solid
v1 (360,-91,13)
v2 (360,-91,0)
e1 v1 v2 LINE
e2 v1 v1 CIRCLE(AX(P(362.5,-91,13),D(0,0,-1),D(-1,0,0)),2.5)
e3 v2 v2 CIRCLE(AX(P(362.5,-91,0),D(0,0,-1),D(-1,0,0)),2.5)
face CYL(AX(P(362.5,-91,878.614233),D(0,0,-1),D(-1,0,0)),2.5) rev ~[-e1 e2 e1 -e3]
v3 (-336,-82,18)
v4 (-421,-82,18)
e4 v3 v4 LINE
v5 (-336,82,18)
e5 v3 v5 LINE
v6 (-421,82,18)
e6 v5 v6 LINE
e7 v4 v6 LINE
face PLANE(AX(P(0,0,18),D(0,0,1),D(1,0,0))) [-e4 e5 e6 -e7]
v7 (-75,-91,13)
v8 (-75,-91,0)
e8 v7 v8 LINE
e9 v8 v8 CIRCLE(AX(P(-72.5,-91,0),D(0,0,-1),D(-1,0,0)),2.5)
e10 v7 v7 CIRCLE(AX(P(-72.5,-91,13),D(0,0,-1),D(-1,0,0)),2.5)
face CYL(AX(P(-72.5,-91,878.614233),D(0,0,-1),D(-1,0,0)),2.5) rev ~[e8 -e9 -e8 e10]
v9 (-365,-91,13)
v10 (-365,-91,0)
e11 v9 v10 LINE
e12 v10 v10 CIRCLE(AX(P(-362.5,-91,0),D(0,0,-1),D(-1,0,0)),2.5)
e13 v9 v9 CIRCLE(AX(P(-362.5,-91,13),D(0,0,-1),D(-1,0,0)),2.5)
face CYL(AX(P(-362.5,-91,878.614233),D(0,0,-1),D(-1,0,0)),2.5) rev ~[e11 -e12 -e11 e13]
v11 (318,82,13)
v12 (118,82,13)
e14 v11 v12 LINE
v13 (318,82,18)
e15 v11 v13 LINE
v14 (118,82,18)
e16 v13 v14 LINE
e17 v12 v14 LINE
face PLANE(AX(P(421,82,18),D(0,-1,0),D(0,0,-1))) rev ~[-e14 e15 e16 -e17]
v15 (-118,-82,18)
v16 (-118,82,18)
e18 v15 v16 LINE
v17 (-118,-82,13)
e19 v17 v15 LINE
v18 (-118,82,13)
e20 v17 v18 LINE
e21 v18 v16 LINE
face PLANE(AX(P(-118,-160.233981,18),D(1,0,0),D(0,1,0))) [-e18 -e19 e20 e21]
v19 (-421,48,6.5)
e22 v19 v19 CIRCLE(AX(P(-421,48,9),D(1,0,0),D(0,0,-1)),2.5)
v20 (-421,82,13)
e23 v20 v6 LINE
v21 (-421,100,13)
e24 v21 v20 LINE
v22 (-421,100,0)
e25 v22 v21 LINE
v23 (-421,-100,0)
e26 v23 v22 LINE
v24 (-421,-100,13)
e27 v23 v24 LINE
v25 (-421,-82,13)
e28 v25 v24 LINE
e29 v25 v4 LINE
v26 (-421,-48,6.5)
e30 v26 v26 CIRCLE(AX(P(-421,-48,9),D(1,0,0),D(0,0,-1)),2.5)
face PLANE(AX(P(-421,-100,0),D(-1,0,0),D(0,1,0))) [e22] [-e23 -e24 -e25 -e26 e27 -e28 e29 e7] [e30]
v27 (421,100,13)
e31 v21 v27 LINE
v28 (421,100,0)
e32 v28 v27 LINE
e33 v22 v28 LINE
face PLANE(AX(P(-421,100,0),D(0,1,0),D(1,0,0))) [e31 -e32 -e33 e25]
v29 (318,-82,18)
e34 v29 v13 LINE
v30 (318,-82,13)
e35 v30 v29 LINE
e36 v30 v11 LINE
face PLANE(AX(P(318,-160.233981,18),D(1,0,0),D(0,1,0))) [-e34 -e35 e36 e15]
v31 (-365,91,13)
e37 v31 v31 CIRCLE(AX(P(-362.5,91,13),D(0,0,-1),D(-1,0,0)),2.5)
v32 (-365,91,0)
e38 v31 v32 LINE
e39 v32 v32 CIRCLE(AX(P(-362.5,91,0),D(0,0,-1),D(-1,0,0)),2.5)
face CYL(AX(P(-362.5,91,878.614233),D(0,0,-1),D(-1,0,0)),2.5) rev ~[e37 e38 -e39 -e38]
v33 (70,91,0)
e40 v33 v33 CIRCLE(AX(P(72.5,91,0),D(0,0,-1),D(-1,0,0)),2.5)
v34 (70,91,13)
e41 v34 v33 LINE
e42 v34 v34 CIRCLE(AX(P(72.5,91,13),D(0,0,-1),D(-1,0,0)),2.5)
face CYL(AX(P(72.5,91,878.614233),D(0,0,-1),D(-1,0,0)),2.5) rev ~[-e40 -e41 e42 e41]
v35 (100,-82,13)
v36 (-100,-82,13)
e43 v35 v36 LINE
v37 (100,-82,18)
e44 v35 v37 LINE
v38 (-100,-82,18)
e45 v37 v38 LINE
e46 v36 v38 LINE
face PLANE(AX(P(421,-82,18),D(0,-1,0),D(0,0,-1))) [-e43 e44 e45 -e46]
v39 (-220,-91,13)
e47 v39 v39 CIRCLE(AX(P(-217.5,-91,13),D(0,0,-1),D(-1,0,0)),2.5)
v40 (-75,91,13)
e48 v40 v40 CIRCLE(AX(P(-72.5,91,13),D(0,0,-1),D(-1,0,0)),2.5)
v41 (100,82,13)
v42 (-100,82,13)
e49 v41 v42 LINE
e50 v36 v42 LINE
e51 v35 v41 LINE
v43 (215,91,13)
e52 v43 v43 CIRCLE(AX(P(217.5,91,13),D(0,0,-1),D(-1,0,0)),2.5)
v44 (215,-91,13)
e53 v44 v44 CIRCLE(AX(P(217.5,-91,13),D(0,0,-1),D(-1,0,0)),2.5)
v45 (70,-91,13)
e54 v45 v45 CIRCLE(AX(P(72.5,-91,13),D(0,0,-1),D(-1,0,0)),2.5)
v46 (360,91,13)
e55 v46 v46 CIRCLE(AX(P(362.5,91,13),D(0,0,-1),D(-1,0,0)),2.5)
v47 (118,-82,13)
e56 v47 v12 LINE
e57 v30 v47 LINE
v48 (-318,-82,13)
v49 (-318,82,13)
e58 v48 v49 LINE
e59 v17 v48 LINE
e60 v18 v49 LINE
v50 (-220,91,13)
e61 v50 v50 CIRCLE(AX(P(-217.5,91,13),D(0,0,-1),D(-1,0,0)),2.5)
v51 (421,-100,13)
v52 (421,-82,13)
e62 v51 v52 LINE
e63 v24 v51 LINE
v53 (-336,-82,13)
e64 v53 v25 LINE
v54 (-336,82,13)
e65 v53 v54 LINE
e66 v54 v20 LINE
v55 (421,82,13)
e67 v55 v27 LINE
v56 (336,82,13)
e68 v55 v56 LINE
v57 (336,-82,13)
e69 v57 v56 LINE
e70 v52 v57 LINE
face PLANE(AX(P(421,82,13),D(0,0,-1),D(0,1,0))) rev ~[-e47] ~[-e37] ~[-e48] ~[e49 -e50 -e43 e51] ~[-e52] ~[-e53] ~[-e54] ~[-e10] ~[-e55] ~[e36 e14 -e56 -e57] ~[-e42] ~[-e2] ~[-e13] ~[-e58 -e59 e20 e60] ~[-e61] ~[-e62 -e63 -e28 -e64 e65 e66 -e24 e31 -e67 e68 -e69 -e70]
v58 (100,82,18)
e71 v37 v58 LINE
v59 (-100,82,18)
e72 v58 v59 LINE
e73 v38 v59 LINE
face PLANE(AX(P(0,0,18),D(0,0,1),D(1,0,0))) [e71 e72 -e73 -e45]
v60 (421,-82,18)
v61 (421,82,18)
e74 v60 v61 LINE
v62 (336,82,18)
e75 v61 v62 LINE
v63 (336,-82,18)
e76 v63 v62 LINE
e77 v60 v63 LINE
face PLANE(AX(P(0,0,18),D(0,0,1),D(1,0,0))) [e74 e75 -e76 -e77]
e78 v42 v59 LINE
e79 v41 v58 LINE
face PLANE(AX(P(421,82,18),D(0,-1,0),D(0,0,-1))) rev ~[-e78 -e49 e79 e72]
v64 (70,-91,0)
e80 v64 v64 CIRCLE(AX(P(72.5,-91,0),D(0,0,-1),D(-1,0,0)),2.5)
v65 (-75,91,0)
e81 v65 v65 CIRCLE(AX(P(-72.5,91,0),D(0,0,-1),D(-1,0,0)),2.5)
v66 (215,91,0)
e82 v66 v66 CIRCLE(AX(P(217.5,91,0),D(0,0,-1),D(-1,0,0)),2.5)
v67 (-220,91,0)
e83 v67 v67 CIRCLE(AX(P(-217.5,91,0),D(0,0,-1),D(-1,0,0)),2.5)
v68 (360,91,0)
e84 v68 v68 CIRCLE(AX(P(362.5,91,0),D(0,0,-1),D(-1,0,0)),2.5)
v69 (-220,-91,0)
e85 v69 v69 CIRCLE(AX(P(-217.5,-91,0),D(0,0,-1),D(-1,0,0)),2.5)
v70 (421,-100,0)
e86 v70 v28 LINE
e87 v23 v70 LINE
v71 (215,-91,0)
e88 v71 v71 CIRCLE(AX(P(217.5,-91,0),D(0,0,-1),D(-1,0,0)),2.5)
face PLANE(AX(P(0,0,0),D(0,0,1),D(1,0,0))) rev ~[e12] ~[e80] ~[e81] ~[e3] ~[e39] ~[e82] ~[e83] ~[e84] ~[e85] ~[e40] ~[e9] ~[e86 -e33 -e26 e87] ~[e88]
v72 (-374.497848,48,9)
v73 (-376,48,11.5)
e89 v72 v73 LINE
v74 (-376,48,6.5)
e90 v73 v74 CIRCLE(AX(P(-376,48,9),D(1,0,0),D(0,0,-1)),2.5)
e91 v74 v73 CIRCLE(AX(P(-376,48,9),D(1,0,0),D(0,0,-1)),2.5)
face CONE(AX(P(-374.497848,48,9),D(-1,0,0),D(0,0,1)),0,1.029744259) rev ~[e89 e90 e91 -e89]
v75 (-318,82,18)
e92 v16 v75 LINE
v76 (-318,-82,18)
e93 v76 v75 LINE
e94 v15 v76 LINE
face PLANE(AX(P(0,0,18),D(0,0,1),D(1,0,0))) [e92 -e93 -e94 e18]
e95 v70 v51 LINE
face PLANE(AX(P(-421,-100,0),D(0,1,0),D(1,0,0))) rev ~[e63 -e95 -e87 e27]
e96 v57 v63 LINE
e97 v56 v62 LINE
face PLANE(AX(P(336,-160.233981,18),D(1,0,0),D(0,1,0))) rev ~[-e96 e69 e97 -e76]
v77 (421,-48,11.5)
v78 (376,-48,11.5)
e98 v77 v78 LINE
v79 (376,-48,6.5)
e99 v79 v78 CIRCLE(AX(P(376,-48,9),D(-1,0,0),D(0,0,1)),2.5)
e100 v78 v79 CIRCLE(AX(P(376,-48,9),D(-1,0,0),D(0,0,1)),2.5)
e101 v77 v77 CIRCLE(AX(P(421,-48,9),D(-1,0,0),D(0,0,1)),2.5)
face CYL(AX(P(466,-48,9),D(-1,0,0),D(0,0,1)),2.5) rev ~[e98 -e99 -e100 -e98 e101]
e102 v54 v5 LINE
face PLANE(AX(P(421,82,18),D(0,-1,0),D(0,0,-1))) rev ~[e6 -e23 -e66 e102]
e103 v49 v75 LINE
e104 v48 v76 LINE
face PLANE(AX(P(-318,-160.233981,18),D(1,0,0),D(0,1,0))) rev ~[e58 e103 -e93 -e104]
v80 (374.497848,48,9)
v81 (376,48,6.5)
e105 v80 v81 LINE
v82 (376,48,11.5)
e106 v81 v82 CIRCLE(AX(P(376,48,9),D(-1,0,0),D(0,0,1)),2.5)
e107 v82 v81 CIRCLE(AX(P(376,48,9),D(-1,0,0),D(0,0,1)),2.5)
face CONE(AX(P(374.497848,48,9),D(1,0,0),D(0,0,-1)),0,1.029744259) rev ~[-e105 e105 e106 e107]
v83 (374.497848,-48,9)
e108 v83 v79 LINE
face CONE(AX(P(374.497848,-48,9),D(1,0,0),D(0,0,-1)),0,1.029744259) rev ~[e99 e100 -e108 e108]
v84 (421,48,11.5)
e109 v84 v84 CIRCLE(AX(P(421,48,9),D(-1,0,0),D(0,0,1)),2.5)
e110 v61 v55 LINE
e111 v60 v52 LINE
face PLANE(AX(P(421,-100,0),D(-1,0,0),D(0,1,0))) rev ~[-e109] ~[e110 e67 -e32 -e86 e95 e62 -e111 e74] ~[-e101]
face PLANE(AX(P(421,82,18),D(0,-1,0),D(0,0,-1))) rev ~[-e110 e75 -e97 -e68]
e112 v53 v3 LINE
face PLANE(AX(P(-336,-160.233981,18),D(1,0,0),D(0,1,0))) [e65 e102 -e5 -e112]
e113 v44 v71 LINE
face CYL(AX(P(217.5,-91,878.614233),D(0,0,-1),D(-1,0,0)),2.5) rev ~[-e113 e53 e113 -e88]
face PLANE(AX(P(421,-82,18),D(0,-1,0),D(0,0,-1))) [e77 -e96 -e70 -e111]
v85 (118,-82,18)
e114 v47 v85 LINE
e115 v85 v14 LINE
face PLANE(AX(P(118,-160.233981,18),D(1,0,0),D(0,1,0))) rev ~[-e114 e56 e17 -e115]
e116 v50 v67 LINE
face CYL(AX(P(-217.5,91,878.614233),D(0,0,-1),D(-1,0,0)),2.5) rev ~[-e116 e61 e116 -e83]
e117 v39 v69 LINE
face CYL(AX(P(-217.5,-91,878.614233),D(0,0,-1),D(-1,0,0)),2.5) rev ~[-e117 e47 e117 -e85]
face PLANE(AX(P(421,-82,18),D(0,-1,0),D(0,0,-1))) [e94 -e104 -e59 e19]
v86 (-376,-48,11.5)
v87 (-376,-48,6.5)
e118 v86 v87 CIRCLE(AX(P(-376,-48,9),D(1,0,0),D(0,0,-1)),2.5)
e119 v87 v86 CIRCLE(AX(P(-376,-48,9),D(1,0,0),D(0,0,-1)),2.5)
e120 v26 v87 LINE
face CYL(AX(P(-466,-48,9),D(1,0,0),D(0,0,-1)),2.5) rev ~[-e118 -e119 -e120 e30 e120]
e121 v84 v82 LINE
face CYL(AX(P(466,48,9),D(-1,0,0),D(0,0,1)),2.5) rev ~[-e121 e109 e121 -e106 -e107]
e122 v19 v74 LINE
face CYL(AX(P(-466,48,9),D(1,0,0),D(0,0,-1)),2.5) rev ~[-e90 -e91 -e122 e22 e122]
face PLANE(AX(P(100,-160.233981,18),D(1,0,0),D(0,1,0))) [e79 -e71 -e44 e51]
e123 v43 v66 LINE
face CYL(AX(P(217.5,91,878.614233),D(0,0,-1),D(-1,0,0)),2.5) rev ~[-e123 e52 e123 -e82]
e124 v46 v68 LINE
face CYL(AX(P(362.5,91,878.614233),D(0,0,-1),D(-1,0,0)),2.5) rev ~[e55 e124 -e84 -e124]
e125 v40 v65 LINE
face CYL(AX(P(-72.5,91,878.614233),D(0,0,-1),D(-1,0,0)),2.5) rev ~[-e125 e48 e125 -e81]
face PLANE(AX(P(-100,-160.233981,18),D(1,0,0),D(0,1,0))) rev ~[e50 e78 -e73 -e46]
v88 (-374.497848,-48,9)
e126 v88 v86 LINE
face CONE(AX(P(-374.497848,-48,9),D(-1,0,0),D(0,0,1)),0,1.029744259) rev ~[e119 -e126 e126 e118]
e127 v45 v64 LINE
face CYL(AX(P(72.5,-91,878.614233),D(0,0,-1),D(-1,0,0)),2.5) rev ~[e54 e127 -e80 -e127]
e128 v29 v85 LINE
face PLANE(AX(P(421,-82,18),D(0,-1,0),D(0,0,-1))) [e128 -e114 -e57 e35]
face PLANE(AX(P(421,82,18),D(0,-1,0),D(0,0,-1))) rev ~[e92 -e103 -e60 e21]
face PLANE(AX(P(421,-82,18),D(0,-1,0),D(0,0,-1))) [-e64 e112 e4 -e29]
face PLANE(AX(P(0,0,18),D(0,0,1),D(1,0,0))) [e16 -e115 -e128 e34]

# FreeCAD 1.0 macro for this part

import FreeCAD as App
import Part
import Sketcher

V = App.Vector


def add_polygon(sketch, points):
    """Adds a closed chain of lines whose ends are joined by coincident constraints."""
    first, n = sketch.GeometryCount, len(points)
    for a, b in zip(points, points[1:] + points[:1]):
        sketch.addGeometry(Part.LineSegment(App.Vector(*a, 0), App.Vector(*b, 0)), False)
    for i in range(n):
        sketch.addConstraint(Sketcher.Constraint("Coincident", first + i, 2, first + (i + 1) % n, 1))

doc = App.newDocument("Part")
params = doc.addObject("Spreadsheet::Sheet", "Params")
for row, (alias, value) in enumerate([
    ("sketch1_width", "842 mm"),
    ("sketch1_height", "200 mm"),
    ("pad1_length", "18 mm"),
    ("sketch2_width", "18 mm"),
    ("sketch2_height", "5 mm"),
    ("sketch3_width", "18 mm"),
    ("pocket2_length", "5 mm"),
    ("sketch4_diameter", "5 mm"),
    ("hole_diameter", "5 mm"),
    ("sketch5_diameter", "5 mm"),
    ("hole2_diameter", "5 mm"),
    ("hole2_depth", "45 mm"),
    ("sketch6_diameter", "5 mm"),
    ("hole3_diameter", "5 mm"),
    ("hole3_depth", "45 mm"),
], start=1):
    params.set(f"A{row}", alias)
    params.set(f"B{row}", "=" + value)
    params.setAlias(f"B{row}", alias)

body = doc.addObject("PartDesign::Body", "Body")

sketch1 = doc.addObject("Sketcher::SketchObject", "Sketch")
body.addObject(sketch1)
sketch1.AttachmentSupport = (doc.XY_Plane, [""])
sketch1.MapMode = "FlatFace"
add_polygon(sketch1, [(-421, 100), (-421, -100), (421, -100), (421, 100)])
sketch1.addConstraint(Sketcher.Constraint("Vertical", 0))
sketch1.addConstraint(Sketcher.Constraint("Horizontal", 1))
sketch1.addConstraint(Sketcher.Constraint("Vertical", 2))
sketch1.addConstraint(Sketcher.Constraint("Horizontal", 3))
sketch1.addConstraint(Sketcher.Constraint("Symmetric", 0, 2, 2, 2, -1, 1))
sketch1.addConstraint(Sketcher.Constraint("DistanceX", 1, 1, 1, 2, 842.0))
sketch1.addConstraint(Sketcher.Constraint("DistanceY", 0, 2, 0, 1, 200.0))
sketch1.setExpression("Constraints[9]", "Params.sketch1_width")
sketch1.setExpression("Constraints[10]", "Params.sketch1_height")
pad1 = doc.addObject("PartDesign::Pad", "Pad")
body.addObject(pad1)
pad1.Profile = sketch1
pad1.setExpression("Length", "Params.pad1_length")

sketch2 = doc.addObject("Sketcher::SketchObject", "Sketch001")
body.addObject(sketch2)
sketch2.AttachmentSupport = (doc.YZ_Plane, [""])
sketch2.MapMode = "FlatFace"
sketch2.AttachmentOffset = App.Placement(V(0, 0, 421), App.Rotation())
add_polygon(sketch2, [(100, 18), (82, 18), (82, 13), (100, 13)])
add_polygon(sketch2, [(-82, 18), (-100, 18), (-100, 13), (-82, 13)])
sketch2.addConstraint(Sketcher.Constraint("Horizontal", 0))
sketch2.addConstraint(Sketcher.Constraint("Vertical", 1))
sketch2.addConstraint(Sketcher.Constraint("Horizontal", 2))
sketch2.addConstraint(Sketcher.Constraint("Vertical", 3))
sketch2.addConstraint(Sketcher.Constraint("Horizontal", 4))
sketch2.addConstraint(Sketcher.Constraint("Vertical", 5))
sketch2.addConstraint(Sketcher.Constraint("Horizontal", 6))
sketch2.addConstraint(Sketcher.Constraint("Vertical", 7))
sketch2.addConstraint(Sketcher.Constraint("Symmetric", 3, 2, 4, 2, -2))
sketch2.addConstraint(Sketcher.Constraint("Symmetric", 1, 2, 6, 2, -2))
sketch2.addConstraint(Sketcher.Constraint("DistanceX", 0, 2, 0, 1, 18.0))
sketch2.addConstraint(Sketcher.Constraint("DistanceY", 1, 2, 1, 1, 5.0))
sketch2.addConstraint(Sketcher.Constraint("DistanceX", -1, 1, 0, 2, 82.0))
sketch2.addConstraint(Sketcher.Constraint("DistanceY", -1, 1, 0, 2, 18.0))
sketch2.setExpression("Constraints[18]", "Params.sketch2_width")
sketch2.setExpression("Constraints[19]", "Params.sketch2_height")
pocket1 = doc.addObject("PartDesign::Pocket", "Pocket")
body.addObject(pocket1)
pocket1.Profile = sketch2
pocket1.Type = "ThroughAll"

sketch3 = doc.addObject("Sketcher::SketchObject", "Sketch002")
body.addObject(sketch3)
sketch3.AttachmentSupport = (doc.XY_Plane, [""])
sketch3.MapMode = "FlatFace"
sketch3.AttachmentOffset = App.Placement(V(0, 0, 18), App.Rotation())
add_polygon(sketch3, [(-336, 135), (-336, -160), (-318, -160), (-318, 135)])
add_polygon(sketch3, [(-118, 135), (-118, -160), (-100, -160), (-100, 135)])
add_polygon(sketch3, [(100, 135), (100, -160), (118, -160), (118, 135)])
add_polygon(sketch3, [(318, 135), (318, -160), (336, -160), (336, 135)])
sketch3.addConstraint(Sketcher.Constraint("Vertical", 0))
sketch3.addConstraint(Sketcher.Constraint("Horizontal", 1))
sketch3.addConstraint(Sketcher.Constraint("Vertical", 2))
sketch3.addConstraint(Sketcher.Constraint("Horizontal", 3))
sketch3.addConstraint(Sketcher.Constraint("Vertical", 4))
sketch3.addConstraint(Sketcher.Constraint("Horizontal", 5))
sketch3.addConstraint(Sketcher.Constraint("Vertical", 6))
sketch3.addConstraint(Sketcher.Constraint("Horizontal", 7))
sketch3.addConstraint(Sketcher.Constraint("Vertical", 8))
sketch3.addConstraint(Sketcher.Constraint("Horizontal", 9))
sketch3.addConstraint(Sketcher.Constraint("Vertical", 10))
sketch3.addConstraint(Sketcher.Constraint("Horizontal", 11))
sketch3.addConstraint(Sketcher.Constraint("Vertical", 12))
sketch3.addConstraint(Sketcher.Constraint("Horizontal", 13))
sketch3.addConstraint(Sketcher.Constraint("Vertical", 14))
sketch3.addConstraint(Sketcher.Constraint("Horizontal", 15))
sketch3.addConstraint(Sketcher.Constraint("Symmetric", 5, 2, 8, 2, -2))
sketch3.addConstraint(Sketcher.Constraint("Symmetric", 7, 2, 10, 2, -2))
sketch3.addConstraint(Sketcher.Constraint("Symmetric", 1, 2, 12, 2, -2))
sketch3.addConstraint(Sketcher.Constraint("Symmetric", 3, 2, 14, 2, -2))
sketch3.addConstraint(Sketcher.Constraint("Horizontal", 1, 2, 4, 2))
sketch3.addConstraint(Sketcher.Constraint("Horizontal", 3, 2, 6, 2))
sketch3.addConstraint(Sketcher.Constraint("Equal", 3, 5))
sketch3.addConstraint(Sketcher.Constraint("DistanceX", 1, 1, 1, 2, 18.0))
sketch3.addConstraint(Sketcher.Constraint("DistanceX", 0, 2, -1, 1, 336.0))
sketch3.addConstraint(Sketcher.Constraint("DistanceX", 4, 2, -1, 1, 118.0))
sketch3.addConstraint(Sketcher.Constraint("DistanceY", 0, 2, 0, 1, 294.880522))
sketch3.addConstraint(Sketcher.Constraint("DistanceY", 0, 2, -1, 1, 160.233981))
sketch3.setExpression("Constraints[39]", "Params.sketch3_width")
pocket2 = doc.addObject("PartDesign::Pocket", "Pocket001")
body.addObject(pocket2)
pocket2.Profile = sketch3
pocket2.setExpression("Length", "Params.pocket2_length")

sketch4 = doc.addObject("Sketcher::SketchObject", "Sketch003")
body.addObject(sketch4)
sketch4.AttachmentSupport = (doc.XY_Plane, [""])
sketch4.MapMode = "FlatFace"
sketch4.AttachmentOffset = App.Placement(V(0, 0, 13), App.Rotation())
sketch4.addGeometry(Part.Circle(V(-362.5, 91, 0), V(0, 0, 1), 2.5), False)
sketch4.addGeometry(Part.Circle(V(-217.5, 91, 0), V(0, 0, 1), 2.5), False)
sketch4.addGeometry(Part.Circle(V(-72.5, 91, 0), V(0, 0, 1), 2.5), False)
sketch4.addGeometry(Part.Circle(V(72.5, 91, 0), V(0, 0, 1), 2.5), False)
sketch4.addGeometry(Part.Circle(V(217.5, 91, 0), V(0, 0, 1), 2.5), False)
sketch4.addGeometry(Part.Circle(V(362.5, 91, 0), V(0, 0, 1), 2.5), False)
sketch4.addGeometry(Part.Circle(V(-362.5, -91, 0), V(0, 0, 1), 2.5), False)
sketch4.addGeometry(Part.Circle(V(217.5, -91, 0), V(0, 0, 1), 2.5), False)
sketch4.addGeometry(Part.Circle(V(362.5, -91, 0), V(0, 0, 1), 2.5), False)
sketch4.addGeometry(Part.Circle(V(-217.5, -91, 0), V(0, 0, 1), 2.5), False)
sketch4.addGeometry(Part.Circle(V(-72.5, -91, 0), V(0, 0, 1), 2.5), False)
sketch4.addGeometry(Part.Circle(V(72.5, -91, 0), V(0, 0, 1), 2.5), False)
sketch4.addConstraint(Sketcher.Constraint("Equal", 0, 1))
sketch4.addConstraint(Sketcher.Constraint("Equal", 1, 2))
sketch4.addConstraint(Sketcher.Constraint("Equal", 2, 3))
sketch4.addConstraint(Sketcher.Constraint("Equal", 3, 4))
sketch4.addConstraint(Sketcher.Constraint("Equal", 4, 5))
sketch4.addConstraint(Sketcher.Constraint("Equal", 5, 6))
sketch4.addConstraint(Sketcher.Constraint("Equal", 6, 7))
sketch4.addConstraint(Sketcher.Constraint("Equal", 7, 8))
sketch4.addConstraint(Sketcher.Constraint("Equal", 8, 9))
sketch4.addConstraint(Sketcher.Constraint("Equal", 9, 10))
sketch4.addConstraint(Sketcher.Constraint("Equal", 10, 11))
sketch4.addConstraint(Sketcher.Constraint("Symmetric", 5, 3, 6, 3, -1, 1))
sketch4.addConstraint(Sketcher.Constraint("Symmetric", 1, 3, 7, 3, -1, 1))
sketch4.addConstraint(Sketcher.Constraint("Symmetric", 0, 3, 8, 3, -1, 1))
sketch4.addConstraint(Sketcher.Constraint("Symmetric", 4, 3, 9, 3, -1, 1))
sketch4.addConstraint(Sketcher.Constraint("Symmetric", 3, 3, 10, 3, -1, 1))
sketch4.addConstraint(Sketcher.Constraint("Symmetric", 2, 3, 11, 3, -1, 1))
sketch4.addConstraint(Sketcher.Constraint("Symmetric", 2, 3, 3, 3, -2))
sketch4.addConstraint(Sketcher.Constraint("Symmetric", 1, 3, 4, 3, -2))
sketch4.addConstraint(Sketcher.Constraint("Symmetric", 0, 3, 5, 3, -2))
sketch4.addConstraint(Sketcher.Constraint("Horizontal", 0, 3, 1, 3))
sketch4.addConstraint(Sketcher.Constraint("Horizontal", 1, 3, 2, 3))
sketch4.addConstraint(Sketcher.Constraint("Diameter", 0, 5.0))
sketch4.addConstraint(Sketcher.Constraint("DistanceY", -1, 1, 0, 3, 91.0))
sketch4.addConstraint(Sketcher.Constraint("DistanceX", 0, 3, 1, 3, 145.0))
sketch4.addConstraint(Sketcher.Constraint("DistanceX", 1, 3, 2, 3, 145.0))
sketch4.addConstraint(Sketcher.Constraint("DistanceX", 2, 3, 3, 3, 145.0))
sketch4.setExpression("Constraints[22]", "Params.sketch4_diameter")
doc.recompute()
hole = doc.addObject("PartDesign::Hole", "Hole")
body.addObject(hole)
hole.Profile = sketch4
hole.ThreadType = "None"
hole.setExpression("Diameter", "Params.hole_diameter")
hole.DepthType = "ThroughAll"

sketch5 = doc.addObject("Sketcher::SketchObject", "Sketch004")
body.addObject(sketch5)
sketch5.AttachmentSupport = (doc.YZ_Plane, [""])
sketch5.MapMode = "FlatFace"
sketch5.AttachmentOffset = App.Placement(V(0, 0, 421), App.Rotation())
sketch5.addGeometry(Part.Circle(V(48, 9, 0), V(0, 0, 1), 2.5), False)
sketch5.addGeometry(Part.Circle(V(-48, 9, 0), V(0, 0, 1), 2.5), False)
sketch5.addConstraint(Sketcher.Constraint("Equal", 0, 1))
sketch5.addConstraint(Sketcher.Constraint("Symmetric", 0, 3, 1, 3, -2))
sketch5.addConstraint(Sketcher.Constraint("Diameter", 0, 5.0))
sketch5.addConstraint(Sketcher.Constraint("DistanceX", -1, 1, 0, 3, 48.0))
sketch5.addConstraint(Sketcher.Constraint("DistanceY", -1, 1, 0, 3, 9.0))
sketch5.setExpression("Constraints[2]", "Params.sketch5_diameter")
doc.recompute()
hole2 = doc.addObject("PartDesign::Hole", "Hole001")
body.addObject(hole2)
hole2.Profile = sketch5
hole2.ThreadType = "None"
hole2.setExpression("Diameter", "Params.hole2_diameter")
hole2.DepthType = "Dimension"
hole2.setExpression("Depth", "Params.hole2_depth")
hole2.DrillPoint = "Angled"
hole2.DrillPointAngle = 118

sketch6 = doc.addObject("Sketcher::SketchObject", "Sketch005")
body.addObject(sketch6)
sketch6.AttachmentSupport = (doc.YZ_Plane, [""])
sketch6.MapMode = "FlatFace"
sketch6.AttachmentOffset = App.Placement(V(0, 0, -421), App.Rotation())
sketch6.addGeometry(Part.Circle(V(48, 9, 0), V(0, 0, 1), 2.5), False)
sketch6.addGeometry(Part.Circle(V(-48, 9, 0), V(0, 0, 1), 2.5), False)
sketch6.addConstraint(Sketcher.Constraint("Equal", 0, 1))
sketch6.addConstraint(Sketcher.Constraint("Symmetric", 0, 3, 1, 3, -2))
sketch6.addConstraint(Sketcher.Constraint("Diameter", 0, 5.0))
sketch6.addConstraint(Sketcher.Constraint("DistanceX", -1, 1, 0, 3, 48.0))
sketch6.addConstraint(Sketcher.Constraint("DistanceY", -1, 1, 0, 3, 9.0))
sketch6.setExpression("Constraints[2]", "Params.sketch6_diameter")
doc.recompute()
hole3 = doc.addObject("PartDesign::Hole", "Hole002")
body.addObject(hole3)
hole3.Profile = sketch6
hole3.ThreadType = "None"
hole3.setExpression("Diameter", "Params.hole3_diameter")
hole3.DepthType = "Dimension"
hole3.setExpression("Depth", "Params.hole3_depth")
hole3.DrillPoint = "Angled"
hole3.DrillPointAngle = 118
hole3.Reversed = True

doc.recompute()
